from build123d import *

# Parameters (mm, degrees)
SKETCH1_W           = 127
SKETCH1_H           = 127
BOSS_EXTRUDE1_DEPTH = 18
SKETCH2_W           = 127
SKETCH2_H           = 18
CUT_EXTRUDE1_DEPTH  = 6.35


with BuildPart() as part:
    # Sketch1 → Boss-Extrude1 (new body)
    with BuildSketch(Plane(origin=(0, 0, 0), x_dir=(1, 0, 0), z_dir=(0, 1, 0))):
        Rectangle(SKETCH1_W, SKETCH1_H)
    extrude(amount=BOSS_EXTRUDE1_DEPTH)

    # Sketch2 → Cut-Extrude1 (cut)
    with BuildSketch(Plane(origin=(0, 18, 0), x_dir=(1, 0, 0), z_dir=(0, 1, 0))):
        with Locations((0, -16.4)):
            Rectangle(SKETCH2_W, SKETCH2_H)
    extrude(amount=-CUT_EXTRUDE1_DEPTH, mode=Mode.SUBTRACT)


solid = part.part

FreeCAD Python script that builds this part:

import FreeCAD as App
import Part
import Sketcher
Q = App.Units.Quantity


def add_polygon(sketch, points):
    """Adds a closed chain of lines whose ends are joined by coincident constraints."""
    first, n = sketch.GeometryCount, len(points)
    for a, b in zip(points, points[1:] + points[:1]):
        sketch.addGeometry(Part.LineSegment(App.Vector(*a, 0), App.Vector(*b, 0)), False)
    for i in range(n):
        sketch.addConstraint(Sketcher.Constraint("Coincident", first + i, 2, first + (i + 1) % n, 1))

doc = App.newDocument("Part")
body = doc.addObject("PartDesign::Body", "Body")

# Sketch on XZ plane
sketch1 = body.newObject("Sketcher::SketchObject", "Sketch")
sketch1.AttachmentSupport = (doc.getObject("XZ_Plane"), [""])
sketch1.MapMode = "FlatFace"
add_polygon(sketch1, [(-64, -64), (-64, 64), (64, 64), (64, -64)])  # lines 0-3
sketch1.addConstraint([
    Sketcher.Constraint("Vertical", 0),
    Sketcher.Constraint("Horizontal", 1),
    Sketcher.Constraint("Vertical", 2),
    Sketcher.Constraint("Horizontal", 3),
    Sketcher.Constraint("Symmetric", 0, 2, 2, 2, -1, 1),
    Sketcher.Constraint("Equal", 3, 0),
    Sketcher.Constraint("DistanceX", 1, 1, 1, 2, Q("5 in")),
])
pad1 = body.newObject("PartDesign::Pad", "Pad")
pad1.Profile = sketch1
pad1.Length = 18
pad1.Reversed = True

# Sketch on XZ plane
sketch2 = body.newObject("Sketcher::SketchObject", "Sketch001")
sketch2.AttachmentSupport = (doc.getObject("XZ_Plane"), [""])
sketch2.MapMode = "FlatFace"
sketch2.AttachmentOffset = App.Placement(App.Vector(0, 0, -18), App.Rotation())
add_polygon(sketch2, [(-64, 7), (-64, 25), (64, 25), (64, 7)])  # lines 0-3
sketch2.addConstraint([
    Sketcher.Constraint("Vertical", 0),
    Sketcher.Constraint("Horizontal", 1),
    Sketcher.Constraint("Vertical", 2),
    Sketcher.Constraint("Horizontal", 3),
    Sketcher.Constraint("DistanceX", 1, 1, 1, 2, Q("5 in")),
    Sketcher.Constraint("DistanceY", -1, 1, 0, 2, Q("1 in")),
    Sketcher.Constraint("DistanceX", 0, 2, -1, 1, Q("2.5 in")),
    Sketcher.Constraint("DistanceY", 0, 1, 0, 2, 18.0),
])
pocket1 = body.newObject("PartDesign::Pocket", "Pocket")
pocket1.Profile = sketch2
pocket1.Length = Q("0.25 in")
pocket1.Reversed = True

doc.recompute()
